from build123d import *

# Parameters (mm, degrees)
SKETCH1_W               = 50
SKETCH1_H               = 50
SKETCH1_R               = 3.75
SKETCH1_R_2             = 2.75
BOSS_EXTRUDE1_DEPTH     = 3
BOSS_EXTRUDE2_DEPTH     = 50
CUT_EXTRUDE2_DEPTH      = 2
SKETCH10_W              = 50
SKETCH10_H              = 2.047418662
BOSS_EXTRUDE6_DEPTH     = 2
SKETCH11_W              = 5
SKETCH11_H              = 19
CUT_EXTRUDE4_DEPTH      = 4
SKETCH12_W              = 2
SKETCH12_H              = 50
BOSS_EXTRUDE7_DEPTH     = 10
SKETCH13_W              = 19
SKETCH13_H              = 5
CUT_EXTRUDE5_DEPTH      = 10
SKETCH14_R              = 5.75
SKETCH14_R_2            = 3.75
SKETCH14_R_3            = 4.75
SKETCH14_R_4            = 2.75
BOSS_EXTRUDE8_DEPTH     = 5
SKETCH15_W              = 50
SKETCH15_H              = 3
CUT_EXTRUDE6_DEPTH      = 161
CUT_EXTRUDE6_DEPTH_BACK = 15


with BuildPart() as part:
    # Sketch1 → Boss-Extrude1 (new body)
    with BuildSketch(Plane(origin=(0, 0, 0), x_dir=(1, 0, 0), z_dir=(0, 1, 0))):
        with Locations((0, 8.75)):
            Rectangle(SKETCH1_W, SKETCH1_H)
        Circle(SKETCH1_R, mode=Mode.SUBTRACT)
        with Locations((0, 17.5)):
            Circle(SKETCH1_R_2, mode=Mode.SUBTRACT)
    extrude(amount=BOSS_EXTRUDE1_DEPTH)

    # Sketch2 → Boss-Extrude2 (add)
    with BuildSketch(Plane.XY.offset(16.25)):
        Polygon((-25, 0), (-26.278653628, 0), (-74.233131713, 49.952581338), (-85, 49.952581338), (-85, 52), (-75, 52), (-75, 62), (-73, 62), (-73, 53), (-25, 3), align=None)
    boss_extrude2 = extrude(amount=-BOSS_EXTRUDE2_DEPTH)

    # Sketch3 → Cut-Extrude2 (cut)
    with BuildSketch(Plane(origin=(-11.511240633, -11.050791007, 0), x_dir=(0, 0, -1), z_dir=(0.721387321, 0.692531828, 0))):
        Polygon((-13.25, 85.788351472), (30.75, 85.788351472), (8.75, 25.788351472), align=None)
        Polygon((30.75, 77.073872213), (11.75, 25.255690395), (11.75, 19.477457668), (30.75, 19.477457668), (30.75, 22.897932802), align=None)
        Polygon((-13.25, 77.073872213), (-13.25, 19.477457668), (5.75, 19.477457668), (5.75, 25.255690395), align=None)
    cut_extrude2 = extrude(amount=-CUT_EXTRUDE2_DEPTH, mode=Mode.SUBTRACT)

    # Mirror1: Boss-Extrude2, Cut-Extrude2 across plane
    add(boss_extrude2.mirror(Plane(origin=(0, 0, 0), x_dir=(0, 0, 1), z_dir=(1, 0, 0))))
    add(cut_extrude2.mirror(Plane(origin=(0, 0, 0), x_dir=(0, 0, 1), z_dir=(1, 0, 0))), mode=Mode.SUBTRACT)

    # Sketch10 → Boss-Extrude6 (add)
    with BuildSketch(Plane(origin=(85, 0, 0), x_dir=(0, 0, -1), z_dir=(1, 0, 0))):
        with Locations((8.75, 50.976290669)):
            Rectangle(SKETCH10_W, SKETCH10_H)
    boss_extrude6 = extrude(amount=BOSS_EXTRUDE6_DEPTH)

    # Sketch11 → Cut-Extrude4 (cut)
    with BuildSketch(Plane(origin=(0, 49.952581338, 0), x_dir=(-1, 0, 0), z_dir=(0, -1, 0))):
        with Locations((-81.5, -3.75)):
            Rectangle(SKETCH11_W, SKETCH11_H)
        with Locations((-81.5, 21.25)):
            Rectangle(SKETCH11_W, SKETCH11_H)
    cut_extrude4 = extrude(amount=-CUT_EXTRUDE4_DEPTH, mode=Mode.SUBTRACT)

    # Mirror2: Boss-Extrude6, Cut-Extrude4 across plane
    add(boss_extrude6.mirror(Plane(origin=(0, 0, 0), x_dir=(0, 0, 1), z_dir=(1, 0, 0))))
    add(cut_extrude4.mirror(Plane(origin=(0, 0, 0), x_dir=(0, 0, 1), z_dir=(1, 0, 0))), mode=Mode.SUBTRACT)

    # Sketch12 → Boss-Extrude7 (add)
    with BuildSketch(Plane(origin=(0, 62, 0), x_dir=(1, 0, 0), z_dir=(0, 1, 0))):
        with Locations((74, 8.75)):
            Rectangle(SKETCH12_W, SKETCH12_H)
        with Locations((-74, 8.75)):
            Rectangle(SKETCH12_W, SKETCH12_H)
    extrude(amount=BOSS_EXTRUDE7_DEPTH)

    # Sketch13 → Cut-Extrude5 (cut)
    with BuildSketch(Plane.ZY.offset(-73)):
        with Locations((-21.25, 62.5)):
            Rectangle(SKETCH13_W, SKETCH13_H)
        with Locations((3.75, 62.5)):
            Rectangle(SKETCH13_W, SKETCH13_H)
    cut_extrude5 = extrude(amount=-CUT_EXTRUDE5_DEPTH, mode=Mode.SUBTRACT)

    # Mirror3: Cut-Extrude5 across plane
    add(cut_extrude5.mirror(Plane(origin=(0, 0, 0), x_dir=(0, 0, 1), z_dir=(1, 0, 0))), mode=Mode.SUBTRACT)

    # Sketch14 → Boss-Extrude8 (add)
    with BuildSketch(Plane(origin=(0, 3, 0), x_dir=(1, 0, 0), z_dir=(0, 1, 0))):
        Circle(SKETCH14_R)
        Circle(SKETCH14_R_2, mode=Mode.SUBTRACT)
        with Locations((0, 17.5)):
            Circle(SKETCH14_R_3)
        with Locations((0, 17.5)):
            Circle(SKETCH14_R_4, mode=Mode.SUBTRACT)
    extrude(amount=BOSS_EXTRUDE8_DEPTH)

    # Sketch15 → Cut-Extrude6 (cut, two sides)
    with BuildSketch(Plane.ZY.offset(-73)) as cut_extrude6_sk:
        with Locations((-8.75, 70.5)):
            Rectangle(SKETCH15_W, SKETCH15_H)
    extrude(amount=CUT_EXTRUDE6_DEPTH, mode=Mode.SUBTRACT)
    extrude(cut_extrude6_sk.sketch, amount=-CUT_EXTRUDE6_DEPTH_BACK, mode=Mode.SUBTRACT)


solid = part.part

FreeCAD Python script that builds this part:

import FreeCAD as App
import Part
import Sketcher

V = App.Vector


def add_polygon(sketch, points):
    """Adds a closed chain of lines whose ends are joined by coincident constraints."""
    first, n = sketch.GeometryCount, len(points)
    for a, b in zip(points, points[1:] + points[:1]):
        sketch.addGeometry(Part.LineSegment(App.Vector(*a, 0), App.Vector(*b, 0)), False)
    for i in range(n):
        sketch.addConstraint(Sketcher.Constraint("Coincident", first + i, 2, first + (i + 1) % n, 1))

doc = App.newDocument("Part")
body = doc.addObject("PartDesign::Body", "Body")

sketch1 = body.newObject("Sketcher::SketchObject", "Sketch")
sketch1.AttachmentSupport = (doc.getObject("XZ_Plane"), [""])
sketch1.MapMode = "FlatFace"
add_polygon(sketch1, [(-25, -33.8), (-25, 16.2), (25, 16.2), (25, -33.8)])
sketch1.addGeometry(Part.Circle(V(0, 0, 0), V(0, 0, 1), 3.8), False)
sketch1.addGeometry(Part.Circle(V(0, -17.5, 0), V(0, 0, 1), 2.8), False)
sketch1.addConstraint(Sketcher.Constraint("Vertical", 0))
sketch1.addConstraint(Sketcher.Constraint("Horizontal", 1))
sketch1.addConstraint(Sketcher.Constraint("Vertical", 2))
sketch1.addConstraint(Sketcher.Constraint("Horizontal", 3))
sketch1.addConstraint(Sketcher.Constraint("Coincident", 4, 3, -1, 1))
sketch1.addConstraint(Sketcher.Constraint("PointOnObject", 5, 3, -2))
sketch1.addConstraint(Sketcher.Constraint("Equal", 3, 0))
sketch1.addConstraint(Sketcher.Constraint("Diameter", 4, 7.5))
sketch1.addConstraint(Sketcher.Constraint("Diameter", 5, 5.5))
sketch1.addConstraint(Sketcher.Constraint("DistanceX", 1, 1, 1, 2, 50.0))
sketch1.addConstraint(Sketcher.Constraint("DistanceX", 0, 2, -1, 1, 25.0))
sketch1.addConstraint(Sketcher.Constraint("DistanceY", 5, 3, -1, 1, 17.5))
sketch1.addConstraint(Sketcher.Constraint("DistanceY", -1, 1, 0, 2, 16.25))
pad1 = body.newObject("PartDesign::Pad", "Pad")
pad1.Profile = sketch1
pad1.Length = 3
pad1.Reversed = True

sketch2 = body.newObject("Sketcher::SketchObject", "Sketch001")
sketch2.AttachmentSupport = (doc.getObject("XY_Plane"), [""])
sketch2.MapMode = "FlatFace"
sketch2.AttachmentOffset = App.Placement(V(0, 0, 16.25), App.Rotation())
add_polygon(sketch2, [(-26.3, 0), (-25, 0), (-25, 3), (-73, 53), (-73, 62), (-75, 62), (-75, 52), (-85, 52), (-85, 50), (-74.2, 50)])
sketch2.addConstraint(Sketcher.Constraint("Horizontal", 0))
sketch2.addConstraint(Sketcher.Constraint("Vertical", 1))
sketch2.addConstraint(Sketcher.Constraint("Vertical", 3))
sketch2.addConstraint(Sketcher.Constraint("Horizontal", 4))
sketch2.addConstraint(Sketcher.Constraint("Vertical", 5))
sketch2.addConstraint(Sketcher.Constraint("Horizontal", 6))
sketch2.addConstraint(Sketcher.Constraint("Vertical", 7))
sketch2.addConstraint(Sketcher.Constraint("Horizontal", 8))
sketch2.addConstraint(Sketcher.Constraint("PointOnObject", 0, 2, -1))
sketch2.addConstraint(Sketcher.Constraint("Parallel", 2, 9))
sketch2.addConstraint(Sketcher.Constraint("Equal", 6, 5))
sketch2.addConstraint(Sketcher.Constraint("DistanceX", 4, 2, 4, 1, 2.0))
sketch2.addConstraint(Sketcher.Constraint("DistanceX", 6, 2, 6, 1, 10.0))
sketch2.addConstraint(Sketcher.Constraint("DistanceY", 1, 1, 1, 2, 3.0))
sketch2.addConstraint(Sketcher.Constraint("DistanceY", 3, 1, 3, 2, 9.0))
sketch2.addConstraint(Sketcher.Constraint("DistanceX", 0, 2, -1, 1, 25.0))
sketch2.addConstraint(Sketcher.Constraint("DistanceX", 2, 2, -1, 1, 73.0))
sketch2.addConstraint(Sketcher.Constraint("DistanceY", -1, 1, 2, 2, 53.0))
sketch2.addConstraint(Sketcher.Constraint("DistanceX", 8, 1, 8, 2, 10.766868))
sketch2.addConstraint(Sketcher.Constraint("DistanceY", 7, 2, 7, 1, 2.047419))
pad2 = body.newObject("PartDesign::Pad", "Pad001")
pad2.Profile = sketch2
pad2.Length = 50
pad2.Reversed = True

sketch3 = body.newObject("Sketcher::SketchObject", "Sketch002")
sketch3.Placement = App.Placement(V(-11.511241, -11.050791, 0), App.Rotation(V(0, 0, -1), V(-0.692531828, 0.721387321, 0), V(0.721387321, 0.692531828, 0), "ZXY"))
add_polygon(sketch3, [(31, 86), (-13, 86), (9, 26)])
add_polygon(sketch3, [(31, 77), (12, 25), (12, 19), (31, 19)])
add_polygon(sketch3, [(-13, 77), (-13, 19), (6, 19), (6, 25)])
sketch3.addConstraint(Sketcher.Constraint("Horizontal", 0))
sketch3.addConstraint(Sketcher.Constraint("Vertical", 4))
sketch3.addConstraint(Sketcher.Constraint("Horizontal", 5))
sketch3.addConstraint(Sketcher.Constraint("Vertical", 6))
sketch3.addConstraint(Sketcher.Constraint("Vertical", 7))
sketch3.addConstraint(Sketcher.Constraint("Horizontal", 8))
sketch3.addConstraint(Sketcher.Constraint("Vertical", 9))
sketch3.addConstraint(Sketcher.Constraint("Parallel", 2, 3))
sketch3.addConstraint(Sketcher.Constraint("Parallel", 1, 10))
sketch3.addConstraint(Sketcher.Constraint("Horizontal", 5, 2, 7, 2))
sketch3.addConstraint(Sketcher.Constraint("Horizontal", 3, 2, 9, 2))
sketch3.addConstraint(Sketcher.Constraint("Horizontal", 6, 2, 10, 2))
sketch3.addConstraint(Sketcher.Constraint("Vertical", 2, 2, 5, 2))
sketch3.addConstraint(Sketcher.Constraint("Vertical", 0, 2, 7, 2))
sketch3.addConstraint(Sketcher.Constraint("Equal", 5, 8))
sketch3.addConstraint(Sketcher.Constraint("DistanceX", 0, 2, 0, 1, 44.0))
sketch3.addConstraint(Sketcher.Constraint("DistanceX", 5, 1, 5, 2, 19.0))
sketch3.addConstraint(Sketcher.Constraint("DistanceY", 1, 2, 0, 2, 60.0))
sketch3.addConstraint(Sketcher.Constraint("DistanceX", 0, 2, -1, 1, 13.25))
sketch3.addConstraint(Sketcher.Constraint("DistanceY", 4, 2, 4, 1, 5.778233))
sketch3.addConstraint(Sketcher.Constraint("DistanceY", -1, 1, 0, 2, 85.788351))
sketch3.addConstraint(Sketcher.Constraint("DistanceY", -1, 1, 3, 2, 25.25569))
pocket1 = body.newObject("PartDesign::Pocket", "Pocket")
pocket1.Profile = sketch3
pocket1.Length = 2
doc.recompute()

mirrored = body.newObject("PartDesign::Mirrored", "Mirrored")
mirrored.Originals = [pad2, pocket1]
mirrored.MirrorPlane = (doc.getObject("YZ_Plane"), [""])
body.Tip = mirrored

sketch4 = body.newObject("Sketcher::SketchObject", "Sketch003")
sketch4.AttachmentSupport = (doc.getObject("YZ_Plane"), [""])
sketch4.MapMode = "FlatFace"
sketch4.AttachmentOffset = App.Placement(V(0, 0, 85), App.Rotation())
add_polygon(sketch4, [(52, 16.2), (50, 16.2), (50, -33.8), (52, -33.8)])
sketch4.addConstraint(Sketcher.Constraint("Horizontal", 0))
sketch4.addConstraint(Sketcher.Constraint("Vertical", 1))
sketch4.addConstraint(Sketcher.Constraint("Horizontal", 2))
sketch4.addConstraint(Sketcher.Constraint("Vertical", 3))
sketch4.addConstraint(Sketcher.Constraint("DistanceY", 1, 2, 1, 1, 50.0))
sketch4.addConstraint(Sketcher.Constraint("DistanceX", -1, 1, 2, 2, 52.0))
sketch4.addConstraint(Sketcher.Constraint("DistanceY", -1, 1, 0, 2, 16.25))
sketch4.addConstraint(Sketcher.Constraint("DistanceX", 0, 2, 0, 1, 2.047419))
pad3 = body.newObject("PartDesign::Pad", "Pad002")
pad3.Profile = sketch4
pad3.Length = 2

sketch5 = body.newObject("Sketcher::SketchObject", "Sketch004")
sketch5.AttachmentSupport = (doc.getObject("XZ_Plane"), [""])
sketch5.MapMode = "FlatFace"
sketch5.AttachmentOffset = App.Placement(V(0, 0, -49.952581), App.Rotation())
add_polygon(sketch5, [(84, -6), (84, 13), (79, 13), (79, -6)])
add_polygon(sketch5, [(84, -31), (84, -12), (79, -12), (79, -31)])
sketch5.addConstraint(Sketcher.Constraint("Vertical", 0))
sketch5.addConstraint(Sketcher.Constraint("Horizontal", 1))
sketch5.addConstraint(Sketcher.Constraint("Vertical", 2))
sketch5.addConstraint(Sketcher.Constraint("Horizontal", 3))
sketch5.addConstraint(Sketcher.Constraint("Vertical", 4))
sketch5.addConstraint(Sketcher.Constraint("Horizontal", 5))
sketch5.addConstraint(Sketcher.Constraint("Vertical", 6))
sketch5.addConstraint(Sketcher.Constraint("Horizontal", 7))
sketch5.addConstraint(Sketcher.Constraint("Vertical", 3, 2, 4, 2))
sketch5.addConstraint(Sketcher.Constraint("Vertical", 2, 2, 5, 2))
sketch5.addConstraint(Sketcher.Constraint("Equal", 2, 4))
sketch5.addConstraint(Sketcher.Constraint("DistanceX", 1, 2, 1, 1, 5.0))
sketch5.addConstraint(Sketcher.Constraint("DistanceY", 0, 1, 0, 2, 19.0))
sketch5.addConstraint(Sketcher.Constraint("DistanceX", -1, 1, 0, 2, 84.0))
sketch5.addConstraint(Sketcher.Constraint("DistanceY", 4, 2, 3, 2, 6.0))
sketch5.addConstraint(Sketcher.Constraint("DistanceY", -1, 1, 0, 2, 13.25))
pocket2 = body.newObject("PartDesign::Pocket", "Pocket001")
pocket2.Profile = sketch5
pocket2.Length = 4
doc.recompute()

mirrored2 = body.newObject("PartDesign::Mirrored", "Mirrored001")
mirrored2.Originals = [pad3, pocket2]
mirrored2.MirrorPlane = (doc.getObject("YZ_Plane"), [""])
body.Tip = mirrored2

sketch6 = body.newObject("Sketcher::SketchObject", "Sketch005")
sketch6.AttachmentSupport = (doc.getObject("XZ_Plane"), [""])
sketch6.MapMode = "FlatFace"
sketch6.AttachmentOffset = App.Placement(V(0, 0, -62), App.Rotation())
add_polygon(sketch6, [(73, -33.8), (73, 16.2), (75, 16.2), (75, -33.8)])
add_polygon(sketch6, [(-75, -33.8), (-75, 16.2), (-73, 16.2), (-73, -33.8)])
sketch6.addConstraint(Sketcher.Constraint("Vertical", 0))
sketch6.addConstraint(Sketcher.Constraint("Horizontal", 1))
sketch6.addConstraint(Sketcher.Constraint("Vertical", 2))
sketch6.addConstraint(Sketcher.Constraint("Horizontal", 3))
sketch6.addConstraint(Sketcher.Constraint("Vertical", 4))
sketch6.addConstraint(Sketcher.Constraint("Horizontal", 5))
sketch6.addConstraint(Sketcher.Constraint("Vertical", 6))
sketch6.addConstraint(Sketcher.Constraint("Horizontal", 7))
sketch6.addConstraint(Sketcher.Constraint("Symmetric", 1, 2, 4, 2, -2))
sketch6.addConstraint(Sketcher.Constraint("Symmetric", 3, 2, 6, 2, -2))
sketch6.addConstraint(Sketcher.Constraint("DistanceX", 1, 1, 1, 2, 2.0))
sketch6.addConstraint(Sketcher.Constraint("DistanceY", 0, 1, 0, 2, 50.0))
sketch6.addConstraint(Sketcher.Constraint("DistanceX", -1, 1, 0, 2, 73.0))
sketch6.addConstraint(Sketcher.Constraint("DistanceY", -1, 1, 0, 2, 16.25))
pad4 = body.newObject("PartDesign::Pad", "Pad003")
pad4.Profile = sketch6
pad4.Length = 10
pad4.Reversed = True

sketch7 = body.newObject("Sketcher::SketchObject", "Sketch006")
sketch7.AttachmentSupport = (doc.getObject("YZ_Plane"), [""])
sketch7.MapMode = "FlatFace"
sketch7.AttachmentOffset = App.Placement(V(0, 0, 73), App.Rotation())
add_polygon(sketch7, [(65, -31), (60, -31), (60, -12), (65, -12)])
add_polygon(sketch7, [(65, -6), (60, -6), (60, 13), (65, 13)])
sketch7.addConstraint(Sketcher.Constraint("Horizontal", 0))
sketch7.addConstraint(Sketcher.Constraint("Vertical", 1))
sketch7.addConstraint(Sketcher.Constraint("Horizontal", 2))
sketch7.addConstraint(Sketcher.Constraint("Vertical", 3))
sketch7.addConstraint(Sketcher.Constraint("Horizontal", 4))
sketch7.addConstraint(Sketcher.Constraint("Vertical", 5))
sketch7.addConstraint(Sketcher.Constraint("Horizontal", 6))
sketch7.addConstraint(Sketcher.Constraint("Vertical", 7))
sketch7.addConstraint(Sketcher.Constraint("Vertical", 1, 2, 4, 2))
sketch7.addConstraint(Sketcher.Constraint("Vertical", 3, 2, 6, 2))
sketch7.addConstraint(Sketcher.Constraint("Equal", 3, 5))
sketch7.addConstraint(Sketcher.Constraint("DistanceX", 0, 2, 0, 1, 5.0))
sketch7.addConstraint(Sketcher.Constraint("DistanceY", 1, 1, 1, 2, 19.0))
sketch7.addConstraint(Sketcher.Constraint("DistanceX", -1, 1, 0, 2, 60.0))
sketch7.addConstraint(Sketcher.Constraint("DistanceY", 1, 2, 4, 2, 6.0))
sketch7.addConstraint(Sketcher.Constraint("DistanceY", 0, 2, -1, 1, 30.75))
pocket3 = body.newObject("PartDesign::Pocket", "Pocket002")
pocket3.Profile = sketch7
pocket3.Length = 10
pocket3.Reversed = True
doc.recompute()

mirrored3 = body.newObject("PartDesign::Mirrored", "Mirrored002")
mirrored3.Originals = [pocket3]
mirrored3.MirrorPlane = (doc.getObject("YZ_Plane"), [""])
body.Tip = mirrored3

sketch8 = body.newObject("Sketcher::SketchObject", "Sketch007")
sketch8.AttachmentSupport = (doc.getObject("XZ_Plane"), [""])
sketch8.MapMode = "FlatFace"
sketch8.AttachmentOffset = App.Placement(V(0, 0, -3), App.Rotation())
sketch8.addGeometry(Part.Circle(V(0, 0, 0), V(0, 0, 1), 5.8), False)
sketch8.addGeometry(Part.Circle(V(0, 0, 0), V(0, 0, 1), 3.8), False)
sketch8.addGeometry(Part.Circle(V(0, -17.5, 0), V(0, 0, 1), 4.8), False)
sketch8.addGeometry(Part.Circle(V(0, -17.5, 0), V(0, 0, 1), 2.8), False)
sketch8.addConstraint(Sketcher.Constraint("Coincident", 0, 3, -1, 1))
sketch8.addConstraint(Sketcher.Constraint("Coincident", 1, 3, -1, 1))
sketch8.addConstraint(Sketcher.Constraint("Coincident", 3, 3, 2, 3))
sketch8.addConstraint(Sketcher.Constraint("PointOnObject", 2, 3, -2))
sketch8.addConstraint(Sketcher.Constraint("Diameter", 0, 11.5))
sketch8.addConstraint(Sketcher.Constraint("Diameter", 1, 7.5))
sketch8.addConstraint(Sketcher.Constraint("Diameter", 2, 9.5))
sketch8.addConstraint(Sketcher.Constraint("Diameter", 3, 5.5))
sketch8.addConstraint(Sketcher.Constraint("DistanceY", 2, 3, -1, 1, 17.5))
pad5 = body.newObject("PartDesign::Pad", "Pad004")
pad5.Profile = sketch8
pad5.Length = 5
pad5.Reversed = True

sketch9 = body.newObject("Sketcher::SketchObject", "Sketch008")
sketch9.AttachmentSupport = (doc.getObject("YZ_Plane"), [""])
sketch9.MapMode = "FlatFace"
sketch9.AttachmentOffset = App.Placement(V(0, 0, 73), App.Rotation())
add_polygon(sketch9, [(72, -33.8), (69, -33.8), (69, 16.2), (72, 16.2)])
sketch9.addConstraint(Sketcher.Constraint("Horizontal", 0))
sketch9.addConstraint(Sketcher.Constraint("Vertical", 1))
sketch9.addConstraint(Sketcher.Constraint("Horizontal", 2))
sketch9.addConstraint(Sketcher.Constraint("Vertical", 3))
sketch9.addConstraint(Sketcher.Constraint("DistanceX", 0, 2, 0, 1, 3.0))
sketch9.addConstraint(Sketcher.Constraint("DistanceY", 1, 1, 1, 2, 50.0))
sketch9.addConstraint(Sketcher.Constraint("DistanceX", -1, 1, 0, 2, 69.0))
sketch9.addConstraint(Sketcher.Constraint("DistanceY", 0, 2, -1, 1, 33.75))
pocket4 = body.newObject("PartDesign::Pocket", "Pocket003")
pocket4.Profile = sketch9
pocket4.Type = "ThroughAll"
pocket4.Midplane = True

doc.recompute()
